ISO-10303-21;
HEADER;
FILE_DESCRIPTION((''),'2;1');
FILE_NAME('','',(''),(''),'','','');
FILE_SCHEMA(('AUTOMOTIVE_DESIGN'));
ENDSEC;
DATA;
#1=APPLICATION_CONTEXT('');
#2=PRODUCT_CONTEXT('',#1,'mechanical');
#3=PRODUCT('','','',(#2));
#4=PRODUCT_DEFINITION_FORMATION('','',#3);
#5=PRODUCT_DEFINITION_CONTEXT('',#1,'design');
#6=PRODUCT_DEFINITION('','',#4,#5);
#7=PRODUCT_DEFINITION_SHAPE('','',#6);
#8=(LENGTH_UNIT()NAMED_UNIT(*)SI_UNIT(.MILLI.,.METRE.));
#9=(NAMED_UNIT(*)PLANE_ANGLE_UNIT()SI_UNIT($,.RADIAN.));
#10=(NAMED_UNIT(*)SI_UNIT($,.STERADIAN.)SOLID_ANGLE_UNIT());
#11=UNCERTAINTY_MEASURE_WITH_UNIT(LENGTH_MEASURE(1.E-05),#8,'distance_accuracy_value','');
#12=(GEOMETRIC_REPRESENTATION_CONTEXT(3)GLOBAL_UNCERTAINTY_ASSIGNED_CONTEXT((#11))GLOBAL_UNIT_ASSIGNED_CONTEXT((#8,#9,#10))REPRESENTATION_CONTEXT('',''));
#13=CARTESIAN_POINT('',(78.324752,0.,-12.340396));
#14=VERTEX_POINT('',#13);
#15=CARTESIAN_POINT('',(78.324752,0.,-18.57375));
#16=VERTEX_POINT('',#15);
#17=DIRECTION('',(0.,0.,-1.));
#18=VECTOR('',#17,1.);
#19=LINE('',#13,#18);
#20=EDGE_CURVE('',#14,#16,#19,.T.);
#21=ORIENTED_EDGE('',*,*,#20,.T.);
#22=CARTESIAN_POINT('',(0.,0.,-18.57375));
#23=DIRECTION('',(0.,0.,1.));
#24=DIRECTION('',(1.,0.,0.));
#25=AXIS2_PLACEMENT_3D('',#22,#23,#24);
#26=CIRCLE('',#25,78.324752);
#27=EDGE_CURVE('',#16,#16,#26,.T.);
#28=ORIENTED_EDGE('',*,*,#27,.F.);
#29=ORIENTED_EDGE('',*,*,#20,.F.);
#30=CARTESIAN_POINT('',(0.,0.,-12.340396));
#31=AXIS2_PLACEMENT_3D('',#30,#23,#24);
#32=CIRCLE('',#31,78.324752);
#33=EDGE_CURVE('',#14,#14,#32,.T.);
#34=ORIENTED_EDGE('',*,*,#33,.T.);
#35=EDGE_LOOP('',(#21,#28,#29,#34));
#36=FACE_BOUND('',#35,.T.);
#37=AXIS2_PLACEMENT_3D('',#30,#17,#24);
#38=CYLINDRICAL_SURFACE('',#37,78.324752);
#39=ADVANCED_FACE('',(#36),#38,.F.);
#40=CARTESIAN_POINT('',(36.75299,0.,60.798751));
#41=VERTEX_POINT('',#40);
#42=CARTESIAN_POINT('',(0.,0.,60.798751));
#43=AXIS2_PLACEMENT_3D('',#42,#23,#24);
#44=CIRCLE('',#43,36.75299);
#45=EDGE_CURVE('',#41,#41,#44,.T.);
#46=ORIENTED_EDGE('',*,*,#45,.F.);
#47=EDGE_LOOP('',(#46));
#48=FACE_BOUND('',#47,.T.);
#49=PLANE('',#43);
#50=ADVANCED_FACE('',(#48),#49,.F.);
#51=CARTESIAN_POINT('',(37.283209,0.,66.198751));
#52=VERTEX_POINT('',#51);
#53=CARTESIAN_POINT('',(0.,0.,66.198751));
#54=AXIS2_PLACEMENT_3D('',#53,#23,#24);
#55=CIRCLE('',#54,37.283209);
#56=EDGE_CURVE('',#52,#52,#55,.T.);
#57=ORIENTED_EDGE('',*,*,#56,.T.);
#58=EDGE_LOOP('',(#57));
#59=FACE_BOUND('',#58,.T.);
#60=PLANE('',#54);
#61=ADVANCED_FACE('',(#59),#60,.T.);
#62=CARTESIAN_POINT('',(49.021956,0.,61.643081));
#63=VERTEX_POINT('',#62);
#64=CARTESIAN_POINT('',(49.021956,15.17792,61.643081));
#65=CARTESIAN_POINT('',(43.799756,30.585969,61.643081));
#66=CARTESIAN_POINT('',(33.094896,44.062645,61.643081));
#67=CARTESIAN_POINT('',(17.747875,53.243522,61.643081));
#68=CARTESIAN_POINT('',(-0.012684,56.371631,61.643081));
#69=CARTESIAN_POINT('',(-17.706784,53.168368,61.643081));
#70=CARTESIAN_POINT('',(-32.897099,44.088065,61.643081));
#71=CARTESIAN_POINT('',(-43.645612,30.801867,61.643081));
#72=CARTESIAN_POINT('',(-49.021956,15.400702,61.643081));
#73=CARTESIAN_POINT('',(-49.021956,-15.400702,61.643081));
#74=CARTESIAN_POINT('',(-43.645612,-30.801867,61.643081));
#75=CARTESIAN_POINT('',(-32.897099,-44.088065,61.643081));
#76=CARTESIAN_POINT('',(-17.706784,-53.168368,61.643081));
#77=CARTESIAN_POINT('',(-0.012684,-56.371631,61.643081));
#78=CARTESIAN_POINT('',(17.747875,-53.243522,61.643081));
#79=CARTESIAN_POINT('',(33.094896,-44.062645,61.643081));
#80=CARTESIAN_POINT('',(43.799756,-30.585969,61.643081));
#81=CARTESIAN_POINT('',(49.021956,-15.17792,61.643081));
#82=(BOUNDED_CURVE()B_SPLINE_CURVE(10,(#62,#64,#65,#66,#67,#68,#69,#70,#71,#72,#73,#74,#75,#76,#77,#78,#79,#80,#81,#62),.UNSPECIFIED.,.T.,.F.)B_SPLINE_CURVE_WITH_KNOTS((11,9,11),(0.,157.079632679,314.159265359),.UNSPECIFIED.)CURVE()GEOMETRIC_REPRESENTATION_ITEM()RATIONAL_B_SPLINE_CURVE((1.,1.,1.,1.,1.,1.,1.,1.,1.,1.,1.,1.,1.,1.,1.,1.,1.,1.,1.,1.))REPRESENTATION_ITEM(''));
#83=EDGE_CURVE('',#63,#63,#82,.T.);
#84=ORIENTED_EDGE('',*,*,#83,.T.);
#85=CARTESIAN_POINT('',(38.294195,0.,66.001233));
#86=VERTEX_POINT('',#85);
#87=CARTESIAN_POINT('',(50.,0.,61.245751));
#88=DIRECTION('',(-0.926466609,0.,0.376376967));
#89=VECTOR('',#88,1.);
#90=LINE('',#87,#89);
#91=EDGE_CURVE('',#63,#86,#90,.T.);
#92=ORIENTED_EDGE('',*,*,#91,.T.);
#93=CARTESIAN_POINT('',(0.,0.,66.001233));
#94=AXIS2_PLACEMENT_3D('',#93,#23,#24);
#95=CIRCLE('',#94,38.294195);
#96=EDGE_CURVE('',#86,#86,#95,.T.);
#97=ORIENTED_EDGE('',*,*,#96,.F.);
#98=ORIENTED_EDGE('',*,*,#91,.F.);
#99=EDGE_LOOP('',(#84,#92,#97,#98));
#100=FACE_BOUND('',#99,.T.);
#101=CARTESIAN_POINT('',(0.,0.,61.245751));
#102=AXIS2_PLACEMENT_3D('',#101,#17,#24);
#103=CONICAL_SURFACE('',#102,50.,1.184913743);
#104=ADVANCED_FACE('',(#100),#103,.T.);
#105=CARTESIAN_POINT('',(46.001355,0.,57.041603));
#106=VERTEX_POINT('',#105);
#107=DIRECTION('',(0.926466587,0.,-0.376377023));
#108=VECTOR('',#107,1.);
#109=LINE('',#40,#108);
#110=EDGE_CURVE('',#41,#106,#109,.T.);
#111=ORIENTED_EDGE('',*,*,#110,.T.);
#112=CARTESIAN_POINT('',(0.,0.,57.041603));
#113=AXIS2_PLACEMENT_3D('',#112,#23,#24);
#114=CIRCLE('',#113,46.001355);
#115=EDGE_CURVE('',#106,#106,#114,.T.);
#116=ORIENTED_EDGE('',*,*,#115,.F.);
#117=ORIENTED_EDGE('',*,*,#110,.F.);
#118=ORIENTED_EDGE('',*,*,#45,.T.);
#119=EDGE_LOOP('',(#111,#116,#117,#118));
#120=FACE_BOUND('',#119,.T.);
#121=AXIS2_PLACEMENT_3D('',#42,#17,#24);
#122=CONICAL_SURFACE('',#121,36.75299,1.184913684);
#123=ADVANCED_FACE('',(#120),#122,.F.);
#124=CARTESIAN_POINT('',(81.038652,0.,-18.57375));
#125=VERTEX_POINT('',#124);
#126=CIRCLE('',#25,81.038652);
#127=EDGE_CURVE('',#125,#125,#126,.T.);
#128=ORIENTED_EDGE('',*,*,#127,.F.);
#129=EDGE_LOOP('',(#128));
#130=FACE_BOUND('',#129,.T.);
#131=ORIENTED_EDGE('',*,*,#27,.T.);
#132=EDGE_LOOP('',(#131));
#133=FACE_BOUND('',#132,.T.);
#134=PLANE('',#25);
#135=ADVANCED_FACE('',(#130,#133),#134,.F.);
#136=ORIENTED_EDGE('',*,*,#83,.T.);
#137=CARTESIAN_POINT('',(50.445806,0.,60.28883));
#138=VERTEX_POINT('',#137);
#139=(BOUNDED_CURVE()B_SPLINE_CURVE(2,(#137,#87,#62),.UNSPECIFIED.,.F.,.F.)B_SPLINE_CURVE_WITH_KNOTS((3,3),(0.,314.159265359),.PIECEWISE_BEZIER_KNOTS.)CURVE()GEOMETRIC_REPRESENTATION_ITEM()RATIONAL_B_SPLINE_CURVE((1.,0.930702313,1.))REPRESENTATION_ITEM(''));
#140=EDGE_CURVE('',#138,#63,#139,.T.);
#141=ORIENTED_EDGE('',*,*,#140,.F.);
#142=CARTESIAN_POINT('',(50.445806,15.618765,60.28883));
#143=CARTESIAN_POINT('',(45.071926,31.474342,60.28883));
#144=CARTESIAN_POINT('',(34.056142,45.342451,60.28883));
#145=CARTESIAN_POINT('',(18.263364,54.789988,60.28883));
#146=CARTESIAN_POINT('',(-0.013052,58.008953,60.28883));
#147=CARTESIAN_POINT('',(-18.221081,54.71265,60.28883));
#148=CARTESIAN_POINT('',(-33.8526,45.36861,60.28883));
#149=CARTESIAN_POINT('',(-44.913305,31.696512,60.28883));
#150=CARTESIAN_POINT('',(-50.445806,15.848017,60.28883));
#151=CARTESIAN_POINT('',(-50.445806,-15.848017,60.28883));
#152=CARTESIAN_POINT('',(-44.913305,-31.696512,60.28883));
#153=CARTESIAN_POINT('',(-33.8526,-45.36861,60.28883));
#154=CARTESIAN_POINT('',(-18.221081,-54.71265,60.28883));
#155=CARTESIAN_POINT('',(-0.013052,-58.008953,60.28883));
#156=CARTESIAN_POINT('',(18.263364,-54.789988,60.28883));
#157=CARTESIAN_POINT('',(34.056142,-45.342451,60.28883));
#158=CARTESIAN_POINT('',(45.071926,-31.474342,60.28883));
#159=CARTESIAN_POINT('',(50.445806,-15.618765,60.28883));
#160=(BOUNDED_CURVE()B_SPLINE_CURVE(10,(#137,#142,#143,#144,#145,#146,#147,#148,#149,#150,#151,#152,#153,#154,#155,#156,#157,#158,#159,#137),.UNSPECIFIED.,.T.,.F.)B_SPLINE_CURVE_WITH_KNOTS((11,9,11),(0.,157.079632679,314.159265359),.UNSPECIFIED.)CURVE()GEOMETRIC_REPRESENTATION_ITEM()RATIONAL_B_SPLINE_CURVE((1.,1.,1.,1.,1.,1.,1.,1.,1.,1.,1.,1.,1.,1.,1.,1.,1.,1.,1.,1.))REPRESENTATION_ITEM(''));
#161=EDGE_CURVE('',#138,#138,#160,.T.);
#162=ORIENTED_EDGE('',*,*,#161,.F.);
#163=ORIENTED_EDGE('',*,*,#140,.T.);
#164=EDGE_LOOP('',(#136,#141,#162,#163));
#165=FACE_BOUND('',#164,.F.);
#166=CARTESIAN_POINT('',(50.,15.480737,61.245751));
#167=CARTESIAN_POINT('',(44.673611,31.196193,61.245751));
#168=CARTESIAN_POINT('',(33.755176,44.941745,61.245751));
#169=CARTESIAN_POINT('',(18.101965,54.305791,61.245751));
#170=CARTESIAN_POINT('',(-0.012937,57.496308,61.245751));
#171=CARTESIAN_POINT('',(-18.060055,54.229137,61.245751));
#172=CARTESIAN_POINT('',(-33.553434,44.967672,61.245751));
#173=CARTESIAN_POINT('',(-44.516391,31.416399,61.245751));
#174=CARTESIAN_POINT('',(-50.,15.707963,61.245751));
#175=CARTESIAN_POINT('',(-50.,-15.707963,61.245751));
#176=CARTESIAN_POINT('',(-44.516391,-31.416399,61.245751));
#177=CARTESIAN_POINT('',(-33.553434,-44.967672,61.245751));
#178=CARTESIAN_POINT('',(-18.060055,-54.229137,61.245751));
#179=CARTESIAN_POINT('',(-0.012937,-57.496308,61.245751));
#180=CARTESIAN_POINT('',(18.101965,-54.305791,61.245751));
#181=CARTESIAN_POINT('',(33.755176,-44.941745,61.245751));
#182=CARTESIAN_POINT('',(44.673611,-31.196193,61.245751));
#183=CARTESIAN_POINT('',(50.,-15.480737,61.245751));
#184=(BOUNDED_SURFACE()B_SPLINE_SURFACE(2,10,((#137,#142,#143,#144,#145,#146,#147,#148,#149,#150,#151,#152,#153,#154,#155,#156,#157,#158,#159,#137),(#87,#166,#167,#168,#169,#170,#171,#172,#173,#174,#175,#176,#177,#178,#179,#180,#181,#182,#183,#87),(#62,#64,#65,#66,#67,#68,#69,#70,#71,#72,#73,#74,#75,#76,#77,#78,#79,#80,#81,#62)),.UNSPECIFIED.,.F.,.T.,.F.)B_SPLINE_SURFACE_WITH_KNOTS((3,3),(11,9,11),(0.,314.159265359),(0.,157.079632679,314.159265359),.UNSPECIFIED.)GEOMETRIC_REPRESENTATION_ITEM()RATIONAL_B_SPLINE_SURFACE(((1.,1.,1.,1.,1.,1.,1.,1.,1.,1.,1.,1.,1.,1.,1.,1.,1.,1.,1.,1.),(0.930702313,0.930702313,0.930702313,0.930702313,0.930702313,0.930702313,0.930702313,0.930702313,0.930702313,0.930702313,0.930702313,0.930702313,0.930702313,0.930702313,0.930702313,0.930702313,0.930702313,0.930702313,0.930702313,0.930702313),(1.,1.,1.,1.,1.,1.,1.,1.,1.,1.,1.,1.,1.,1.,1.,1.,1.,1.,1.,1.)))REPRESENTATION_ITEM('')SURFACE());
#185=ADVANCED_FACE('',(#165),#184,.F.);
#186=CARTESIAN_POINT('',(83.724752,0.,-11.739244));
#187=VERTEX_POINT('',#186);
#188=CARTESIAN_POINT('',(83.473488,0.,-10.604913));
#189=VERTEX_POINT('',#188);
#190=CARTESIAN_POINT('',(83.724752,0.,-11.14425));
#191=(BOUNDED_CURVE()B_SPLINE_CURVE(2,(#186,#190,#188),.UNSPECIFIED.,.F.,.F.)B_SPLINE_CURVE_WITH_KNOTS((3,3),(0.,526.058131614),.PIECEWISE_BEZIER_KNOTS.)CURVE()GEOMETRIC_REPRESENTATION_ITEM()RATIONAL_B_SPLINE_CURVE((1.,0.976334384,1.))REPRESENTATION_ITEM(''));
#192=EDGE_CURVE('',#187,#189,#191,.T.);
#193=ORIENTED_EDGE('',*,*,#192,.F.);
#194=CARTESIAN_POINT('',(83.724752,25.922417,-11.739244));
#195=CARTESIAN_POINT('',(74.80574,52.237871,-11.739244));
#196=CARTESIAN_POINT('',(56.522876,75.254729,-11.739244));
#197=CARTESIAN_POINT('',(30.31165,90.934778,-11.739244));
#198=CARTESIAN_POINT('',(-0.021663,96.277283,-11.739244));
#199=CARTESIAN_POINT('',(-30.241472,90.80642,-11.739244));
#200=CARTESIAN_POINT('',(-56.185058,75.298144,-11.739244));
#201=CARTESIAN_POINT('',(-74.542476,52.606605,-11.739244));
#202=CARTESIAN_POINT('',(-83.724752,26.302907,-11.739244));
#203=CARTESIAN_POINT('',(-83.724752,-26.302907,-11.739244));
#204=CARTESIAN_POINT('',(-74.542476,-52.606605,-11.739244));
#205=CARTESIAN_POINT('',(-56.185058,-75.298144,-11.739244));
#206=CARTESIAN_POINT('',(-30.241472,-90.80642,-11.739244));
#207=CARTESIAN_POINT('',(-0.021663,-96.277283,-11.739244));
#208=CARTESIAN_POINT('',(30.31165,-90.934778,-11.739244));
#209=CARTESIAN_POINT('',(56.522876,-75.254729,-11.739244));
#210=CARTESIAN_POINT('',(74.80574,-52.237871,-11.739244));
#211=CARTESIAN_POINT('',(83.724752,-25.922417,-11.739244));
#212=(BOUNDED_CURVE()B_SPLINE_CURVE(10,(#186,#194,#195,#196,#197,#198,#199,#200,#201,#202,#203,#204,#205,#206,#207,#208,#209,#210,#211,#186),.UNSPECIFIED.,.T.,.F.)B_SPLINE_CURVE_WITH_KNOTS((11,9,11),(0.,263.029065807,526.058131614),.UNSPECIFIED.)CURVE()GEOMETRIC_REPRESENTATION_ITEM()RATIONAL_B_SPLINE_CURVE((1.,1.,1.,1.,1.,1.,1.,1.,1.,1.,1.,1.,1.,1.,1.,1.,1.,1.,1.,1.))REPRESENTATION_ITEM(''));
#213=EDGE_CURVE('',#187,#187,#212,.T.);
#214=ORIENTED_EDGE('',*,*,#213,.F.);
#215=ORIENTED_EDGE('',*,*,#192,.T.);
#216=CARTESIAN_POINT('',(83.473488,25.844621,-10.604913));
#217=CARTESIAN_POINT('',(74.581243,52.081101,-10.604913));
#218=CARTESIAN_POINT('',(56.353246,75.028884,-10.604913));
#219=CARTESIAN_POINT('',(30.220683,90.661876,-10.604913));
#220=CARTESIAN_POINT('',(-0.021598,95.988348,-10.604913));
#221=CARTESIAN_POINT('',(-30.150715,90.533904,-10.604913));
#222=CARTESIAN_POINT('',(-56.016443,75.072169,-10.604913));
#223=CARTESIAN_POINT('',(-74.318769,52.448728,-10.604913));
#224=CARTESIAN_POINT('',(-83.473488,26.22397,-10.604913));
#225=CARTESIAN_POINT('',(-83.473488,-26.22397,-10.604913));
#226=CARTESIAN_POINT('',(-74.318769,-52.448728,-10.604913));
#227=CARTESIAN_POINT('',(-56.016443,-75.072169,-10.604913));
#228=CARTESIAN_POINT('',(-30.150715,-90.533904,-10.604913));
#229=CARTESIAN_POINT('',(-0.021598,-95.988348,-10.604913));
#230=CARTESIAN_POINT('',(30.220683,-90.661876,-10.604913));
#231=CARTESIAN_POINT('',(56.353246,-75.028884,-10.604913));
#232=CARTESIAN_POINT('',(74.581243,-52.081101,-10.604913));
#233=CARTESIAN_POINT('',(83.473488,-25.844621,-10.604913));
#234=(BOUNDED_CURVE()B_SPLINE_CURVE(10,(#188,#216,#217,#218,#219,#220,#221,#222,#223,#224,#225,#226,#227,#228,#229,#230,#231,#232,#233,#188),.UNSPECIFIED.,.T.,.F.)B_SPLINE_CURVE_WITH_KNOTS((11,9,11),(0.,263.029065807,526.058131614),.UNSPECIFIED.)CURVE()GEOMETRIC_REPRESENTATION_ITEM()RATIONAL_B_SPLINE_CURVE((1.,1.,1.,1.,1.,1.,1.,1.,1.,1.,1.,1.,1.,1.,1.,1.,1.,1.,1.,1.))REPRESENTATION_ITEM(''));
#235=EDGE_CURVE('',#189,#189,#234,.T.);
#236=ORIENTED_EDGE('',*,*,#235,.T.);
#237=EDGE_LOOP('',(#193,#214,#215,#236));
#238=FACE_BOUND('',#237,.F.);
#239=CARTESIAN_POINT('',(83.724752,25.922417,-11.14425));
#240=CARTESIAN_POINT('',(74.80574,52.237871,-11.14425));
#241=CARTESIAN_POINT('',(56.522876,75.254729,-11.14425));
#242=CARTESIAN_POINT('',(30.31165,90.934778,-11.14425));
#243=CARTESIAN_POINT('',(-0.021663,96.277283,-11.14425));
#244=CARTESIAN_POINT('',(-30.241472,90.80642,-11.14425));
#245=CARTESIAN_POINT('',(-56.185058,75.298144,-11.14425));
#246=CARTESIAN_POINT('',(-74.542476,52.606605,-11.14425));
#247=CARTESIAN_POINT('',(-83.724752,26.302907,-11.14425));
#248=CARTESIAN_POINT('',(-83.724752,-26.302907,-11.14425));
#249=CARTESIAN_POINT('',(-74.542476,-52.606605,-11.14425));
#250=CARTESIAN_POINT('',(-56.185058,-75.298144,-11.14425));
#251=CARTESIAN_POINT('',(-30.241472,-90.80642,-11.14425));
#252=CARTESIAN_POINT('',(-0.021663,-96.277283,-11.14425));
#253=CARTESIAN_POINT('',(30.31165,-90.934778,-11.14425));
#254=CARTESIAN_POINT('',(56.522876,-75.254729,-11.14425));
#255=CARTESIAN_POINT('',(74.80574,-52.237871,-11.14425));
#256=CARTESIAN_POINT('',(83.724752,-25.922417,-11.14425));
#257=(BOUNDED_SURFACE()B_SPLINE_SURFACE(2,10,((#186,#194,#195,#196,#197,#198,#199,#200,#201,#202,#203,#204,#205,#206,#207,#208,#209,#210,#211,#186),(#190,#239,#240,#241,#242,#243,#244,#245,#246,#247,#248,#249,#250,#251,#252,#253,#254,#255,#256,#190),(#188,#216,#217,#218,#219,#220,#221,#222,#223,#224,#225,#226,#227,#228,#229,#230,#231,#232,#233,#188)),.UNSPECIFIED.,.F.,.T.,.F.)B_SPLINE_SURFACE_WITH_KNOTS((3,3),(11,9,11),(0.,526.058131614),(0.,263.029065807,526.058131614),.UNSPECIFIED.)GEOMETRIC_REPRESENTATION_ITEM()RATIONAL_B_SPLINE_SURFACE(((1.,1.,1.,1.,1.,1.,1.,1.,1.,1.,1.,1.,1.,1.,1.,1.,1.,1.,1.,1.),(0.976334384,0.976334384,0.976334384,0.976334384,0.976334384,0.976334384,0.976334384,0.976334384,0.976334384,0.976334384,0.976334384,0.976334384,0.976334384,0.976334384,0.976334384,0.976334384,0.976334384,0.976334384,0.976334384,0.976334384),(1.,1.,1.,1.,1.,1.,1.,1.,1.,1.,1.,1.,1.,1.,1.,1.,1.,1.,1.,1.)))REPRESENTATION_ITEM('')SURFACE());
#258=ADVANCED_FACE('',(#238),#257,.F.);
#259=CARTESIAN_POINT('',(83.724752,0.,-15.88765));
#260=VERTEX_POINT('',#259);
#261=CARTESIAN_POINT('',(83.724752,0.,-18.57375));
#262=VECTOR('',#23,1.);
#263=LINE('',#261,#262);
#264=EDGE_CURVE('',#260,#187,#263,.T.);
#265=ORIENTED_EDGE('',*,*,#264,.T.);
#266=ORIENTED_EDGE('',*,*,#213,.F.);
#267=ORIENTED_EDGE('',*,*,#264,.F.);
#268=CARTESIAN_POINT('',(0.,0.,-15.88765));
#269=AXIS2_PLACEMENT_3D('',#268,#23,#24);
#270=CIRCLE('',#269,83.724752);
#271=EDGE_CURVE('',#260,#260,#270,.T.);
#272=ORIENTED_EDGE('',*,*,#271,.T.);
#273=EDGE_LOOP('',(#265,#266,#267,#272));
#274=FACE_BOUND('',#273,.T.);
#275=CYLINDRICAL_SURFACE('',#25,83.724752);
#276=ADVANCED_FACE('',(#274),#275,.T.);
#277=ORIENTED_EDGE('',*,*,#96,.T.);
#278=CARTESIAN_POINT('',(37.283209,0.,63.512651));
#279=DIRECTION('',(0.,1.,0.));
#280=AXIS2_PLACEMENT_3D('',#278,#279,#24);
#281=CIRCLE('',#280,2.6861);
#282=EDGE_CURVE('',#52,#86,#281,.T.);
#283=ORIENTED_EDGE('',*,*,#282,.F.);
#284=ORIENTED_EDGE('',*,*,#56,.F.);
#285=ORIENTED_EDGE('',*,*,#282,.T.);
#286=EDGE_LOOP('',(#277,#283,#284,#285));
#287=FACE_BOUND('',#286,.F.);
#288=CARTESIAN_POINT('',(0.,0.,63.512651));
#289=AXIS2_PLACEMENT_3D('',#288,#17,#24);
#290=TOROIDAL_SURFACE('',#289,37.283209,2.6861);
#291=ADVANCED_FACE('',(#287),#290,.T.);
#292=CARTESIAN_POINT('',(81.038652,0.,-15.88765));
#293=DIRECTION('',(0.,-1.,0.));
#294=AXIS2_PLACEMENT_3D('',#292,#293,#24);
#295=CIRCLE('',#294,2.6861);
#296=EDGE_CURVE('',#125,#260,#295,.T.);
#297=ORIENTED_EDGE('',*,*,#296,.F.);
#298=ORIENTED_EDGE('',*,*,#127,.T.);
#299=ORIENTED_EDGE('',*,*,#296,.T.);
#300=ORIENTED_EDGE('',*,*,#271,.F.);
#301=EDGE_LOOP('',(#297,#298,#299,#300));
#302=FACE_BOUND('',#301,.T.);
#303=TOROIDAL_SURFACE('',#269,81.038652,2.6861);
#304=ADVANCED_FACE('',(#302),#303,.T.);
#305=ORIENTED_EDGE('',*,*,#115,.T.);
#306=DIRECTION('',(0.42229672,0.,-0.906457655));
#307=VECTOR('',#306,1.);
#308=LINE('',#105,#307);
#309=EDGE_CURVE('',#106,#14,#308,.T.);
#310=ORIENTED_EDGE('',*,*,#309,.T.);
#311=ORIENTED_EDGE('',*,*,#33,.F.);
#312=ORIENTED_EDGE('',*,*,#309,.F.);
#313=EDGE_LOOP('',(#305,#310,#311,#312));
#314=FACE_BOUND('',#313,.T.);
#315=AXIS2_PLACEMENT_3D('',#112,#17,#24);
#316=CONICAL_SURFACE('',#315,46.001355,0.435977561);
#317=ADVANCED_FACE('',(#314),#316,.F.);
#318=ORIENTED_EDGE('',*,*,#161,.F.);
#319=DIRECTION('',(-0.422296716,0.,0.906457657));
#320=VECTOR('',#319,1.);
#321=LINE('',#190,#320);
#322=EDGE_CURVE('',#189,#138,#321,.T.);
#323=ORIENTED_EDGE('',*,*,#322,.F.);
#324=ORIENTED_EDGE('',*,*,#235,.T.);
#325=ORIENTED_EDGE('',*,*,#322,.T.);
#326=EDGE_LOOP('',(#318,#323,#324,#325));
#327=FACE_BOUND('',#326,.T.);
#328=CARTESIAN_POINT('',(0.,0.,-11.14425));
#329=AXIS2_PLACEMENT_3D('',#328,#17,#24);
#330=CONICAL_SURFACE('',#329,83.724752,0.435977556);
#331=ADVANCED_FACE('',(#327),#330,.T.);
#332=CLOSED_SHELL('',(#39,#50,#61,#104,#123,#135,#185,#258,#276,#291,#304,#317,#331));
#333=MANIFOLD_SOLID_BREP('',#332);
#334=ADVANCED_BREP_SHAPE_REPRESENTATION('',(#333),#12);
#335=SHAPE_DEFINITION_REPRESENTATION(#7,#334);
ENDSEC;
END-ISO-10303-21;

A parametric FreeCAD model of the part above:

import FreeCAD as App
import Part
import Sketcher
from FreeCAD import Vector


def edges_at(feature, points):
    """Names of the edges that pass closest to the given points."""
    edges = feature.Shape.Edges
    near = lambda p: min(range(len(edges)), key=lambda i: edges[i].distToShape(Part.Vertex(*p))[0])
    return sorted({f"Edge{near(p) + 1}" for p in points})

doc = App.newDocument("Part")
body = doc.addObject("PartDesign::Body", "Body")

sketch1 = body.newObject("Sketcher::SketchObject", "Sketch")
sketch1.AttachmentSupport = (doc.getObject("XZ_Plane"), [""])
sketch1.MapMode = "FlatFace"
sketch1.addGeometry([
    Part.LineSegment(Vector(38, 66, 0), Vector(0, 66, 0)),
    Part.LineSegment(Vector(0, 66, 0), Vector(0, 61, 0)),
    Part.LineSegment(Vector(0, 61, 0), Vector(37, 61, 0)),
    Part.LineSegment(Vector(37, 61, 0), Vector(46, 57, 0)),
    Part.LineSegment(Vector(46, 57, 0), Vector(78, -12, 0)),
    Part.LineSegment(Vector(78, -12, 0), Vector(78, -19, 0)),
    Part.LineSegment(Vector(78, -19, 0), Vector(84, -19, 0)),
    Part.LineSegment(Vector(84, -19, 0), Vector(84, -11, 0)),
    Part.LineSegment(Vector(84, -11, 0), Vector(50, 61, 0)),
    Part.LineSegment(Vector(50, 61, 0), Vector(38, 66, 0)),
], False)
sketch1.addConstraint([
    Sketcher.Constraint("Coincident", 0, 2, 1, 1),
    Sketcher.Constraint("Coincident", 1, 2, 2, 1),
    Sketcher.Constraint("Coincident", 2, 2, 3, 1),
    Sketcher.Constraint("Coincident", 3, 2, 4, 1),
    Sketcher.Constraint("Coincident", 4, 2, 5, 1),
    Sketcher.Constraint("Coincident", 5, 2, 6, 1),
    Sketcher.Constraint("Coincident", 6, 2, 7, 1),
    Sketcher.Constraint("Coincident", 7, 2, 8, 1),
    Sketcher.Constraint("Coincident", 8, 2, 9, 1),
    Sketcher.Constraint("Coincident", 9, 2, 0, 1),
    Sketcher.Constraint("Horizontal", 0),
    Sketcher.Constraint("Vertical", 1),
    Sketcher.Constraint("Horizontal", 2),
    Sketcher.Constraint("Vertical", 5),
    Sketcher.Constraint("Horizontal", 6),
    Sketcher.Constraint("Vertical", 7),
    Sketcher.Constraint("PointOnObject", 0, 2, -2),
    Sketcher.Constraint("Parallel", 4, 8),
    Sketcher.Constraint("Parallel", 3, 9),
    Sketcher.Constraint("Equal", 6, 1),
    Sketcher.Constraint("DistanceX", 6, 1, 6, 2, 5.4),
    Sketcher.Constraint("DistanceX", -1, 1, 8, 2, 50.0),
    Sketcher.Constraint("DistanceY", 7, 1, 7, 2, 7.4295),
    Sketcher.Constraint("DistanceY", 4, 2, 3, 2, 69.381999),
    Sketcher.Constraint("DistanceY", 7, 2, 2, 2, 71.943001),
    Sketcher.Constraint("DistanceY", 2, 2, 8, 2, 0.447),
    Sketcher.Constraint("DistanceX", 2, 1, 2, 2, 36.75299),
    Sketcher.Constraint("Distance", 4, 76.541909),
    Sketcher.Constraint("Distance", 9, 13.159679),
    Sketcher.Constraint("DistanceY", -1, 1, 0, 2, 66.198751),
])
revolution = body.newObject("PartDesign::Revolution", "Revolution")
revolution.Profile = sketch1
revolution.ReferenceAxis = (sketch1, ["V_Axis"])
revolution.Angle = 360
doc.recompute()

fillet = body.newObject("PartDesign::Fillet", "Fillet")
fillet.Base = (revolution, edges_at(revolution, [
    (-83.725, 0, -18.574),
    (-83.725, 0, -11.144),
    (83.725, 0, -14.859),
    (-50, 0, 61.246),
    (-37.808, 0, 66.199),
    (43.904, 0, 63.722),
    (66.862, 0, 25.051),
]))
fillet.Radius = 2.6861

doc.recompute()
